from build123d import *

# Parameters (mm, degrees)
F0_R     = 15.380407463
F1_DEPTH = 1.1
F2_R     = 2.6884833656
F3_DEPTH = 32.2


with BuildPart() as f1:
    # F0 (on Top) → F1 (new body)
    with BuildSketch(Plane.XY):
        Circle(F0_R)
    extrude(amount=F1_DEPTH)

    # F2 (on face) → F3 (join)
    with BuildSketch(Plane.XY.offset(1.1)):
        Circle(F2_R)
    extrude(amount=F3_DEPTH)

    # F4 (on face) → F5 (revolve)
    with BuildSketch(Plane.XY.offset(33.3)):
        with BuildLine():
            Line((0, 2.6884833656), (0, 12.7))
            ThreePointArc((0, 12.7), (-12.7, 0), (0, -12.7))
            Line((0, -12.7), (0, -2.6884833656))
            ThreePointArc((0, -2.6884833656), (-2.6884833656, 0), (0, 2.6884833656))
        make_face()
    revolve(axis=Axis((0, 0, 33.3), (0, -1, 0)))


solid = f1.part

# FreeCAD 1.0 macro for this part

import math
import FreeCAD as App
import Part
import Sketcher

V = App.Vector
Q = App.Units.Quantity

doc = App.newDocument("Part")
body = doc.addObject("PartDesign::Body", "Body")

# Sketch on XY plane
sketch1 = doc.addObject("Sketcher::SketchObject", "Sketch")
body.addObject(sketch1)
sketch1.AttachmentSupport = (doc.XY_Plane, [""])
sketch1.MapMode = "FlatFace"
sketch1.addGeometry(Part.Circle(V(0, 0, 0), V(0, 0, 1), 15), False)
sketch1.addConstraint(Sketcher.Constraint("Coincident", 0, 3, -1, 1))
sketch1.addConstraint(Sketcher.Constraint("Diameter", 0, Q("30.760815 mm")))
pad1 = doc.addObject("PartDesign::Pad", "Pad")
body.addObject(pad1)
pad1.Profile = sketch1
pad1.Length = 1.1

# Sketch on XY plane
sketch2 = doc.addObject("Sketcher::SketchObject", "Sketch001")
body.addObject(sketch2)
sketch2.AttachmentSupport = (doc.XY_Plane, [""])
sketch2.MapMode = "FlatFace"
sketch2.AttachmentOffset = App.Placement(V(0, 0, 1.1), App.Rotation())
sketch2.addGeometry(Part.Circle(V(0, 0, 0), V(0, 0, 1), 2.7), False)
sketch2.addConstraint(Sketcher.Constraint("Coincident", 0, 3, -1, 1))
sketch2.addConstraint(Sketcher.Constraint("Diameter", 0, Q("5.376967 mm")))
pad2 = doc.addObject("PartDesign::Pad", "Pad001")
body.addObject(pad2)
pad2.Profile = sketch2
pad2.Length = 32.2

# Sketch on XY plane
sketch3 = doc.addObject("Sketcher::SketchObject", "Sketch002")
body.addObject(sketch3)
sketch3.AttachmentSupport = (doc.XY_Plane, [""])
sketch3.MapMode = "FlatFace"
sketch3.AttachmentOffset = App.Placement(V(0, 0, 33.3), App.Rotation())
sketch3.addGeometry(Part.LineSegment(V(0, 2.7, 0), V(0, 12.7, 0)), False)
sketch3.addGeometry(Part.ArcOfCircle(Part.Circle(V(0, 0, 0), V(0, 0, 1), 12.7), math.radians(90), math.radians(270)), False)
sketch3.addGeometry(Part.LineSegment(V(0, -12.7, 0), V(0, -2.7, 0)), False)
sketch3.addGeometry(Part.ArcOfCircle(Part.Circle(V(0, 0, 0), V(0, 0, 1), 2.7), math.radians(90), math.radians(270)), False)
sketch3.addConstraint(Sketcher.Constraint("Coincident", 0, 2, 1, 1))
sketch3.addConstraint(Sketcher.Constraint("Coincident", 1, 2, 2, 1))
sketch3.addConstraint(Sketcher.Constraint("Coincident", 2, 2, 3, 2))
sketch3.addConstraint(Sketcher.Constraint("Coincident", 3, 1, 0, 1))
sketch3.addConstraint(Sketcher.Constraint("Vertical", 0))
sketch3.addConstraint(Sketcher.Constraint("Vertical", 2))
sketch3.addConstraint(Sketcher.Constraint("Coincident", 1, 3, -1, 1))
sketch3.addConstraint(Sketcher.Constraint("Coincident", 3, 3, -1, 1))
sketch3.addConstraint(Sketcher.Constraint("PointOnObject", 0, 2, -2))
sketch3.addConstraint(Sketcher.Constraint("PointOnObject", 1, 2, -2))
sketch3.addConstraint(Sketcher.Constraint("Radius", 1, Q("12.7 mm")))
sketch3.addConstraint(Sketcher.Constraint("Radius", 3, Q("2.688483 mm")))
revolution = doc.addObject("PartDesign::Revolution", "Revolution")
body.addObject(revolution)
revolution.Profile = sketch3
revolution.ReferenceAxis = (sketch3, ["V_Axis"])
revolution.Angle = 360

doc.recompute()
